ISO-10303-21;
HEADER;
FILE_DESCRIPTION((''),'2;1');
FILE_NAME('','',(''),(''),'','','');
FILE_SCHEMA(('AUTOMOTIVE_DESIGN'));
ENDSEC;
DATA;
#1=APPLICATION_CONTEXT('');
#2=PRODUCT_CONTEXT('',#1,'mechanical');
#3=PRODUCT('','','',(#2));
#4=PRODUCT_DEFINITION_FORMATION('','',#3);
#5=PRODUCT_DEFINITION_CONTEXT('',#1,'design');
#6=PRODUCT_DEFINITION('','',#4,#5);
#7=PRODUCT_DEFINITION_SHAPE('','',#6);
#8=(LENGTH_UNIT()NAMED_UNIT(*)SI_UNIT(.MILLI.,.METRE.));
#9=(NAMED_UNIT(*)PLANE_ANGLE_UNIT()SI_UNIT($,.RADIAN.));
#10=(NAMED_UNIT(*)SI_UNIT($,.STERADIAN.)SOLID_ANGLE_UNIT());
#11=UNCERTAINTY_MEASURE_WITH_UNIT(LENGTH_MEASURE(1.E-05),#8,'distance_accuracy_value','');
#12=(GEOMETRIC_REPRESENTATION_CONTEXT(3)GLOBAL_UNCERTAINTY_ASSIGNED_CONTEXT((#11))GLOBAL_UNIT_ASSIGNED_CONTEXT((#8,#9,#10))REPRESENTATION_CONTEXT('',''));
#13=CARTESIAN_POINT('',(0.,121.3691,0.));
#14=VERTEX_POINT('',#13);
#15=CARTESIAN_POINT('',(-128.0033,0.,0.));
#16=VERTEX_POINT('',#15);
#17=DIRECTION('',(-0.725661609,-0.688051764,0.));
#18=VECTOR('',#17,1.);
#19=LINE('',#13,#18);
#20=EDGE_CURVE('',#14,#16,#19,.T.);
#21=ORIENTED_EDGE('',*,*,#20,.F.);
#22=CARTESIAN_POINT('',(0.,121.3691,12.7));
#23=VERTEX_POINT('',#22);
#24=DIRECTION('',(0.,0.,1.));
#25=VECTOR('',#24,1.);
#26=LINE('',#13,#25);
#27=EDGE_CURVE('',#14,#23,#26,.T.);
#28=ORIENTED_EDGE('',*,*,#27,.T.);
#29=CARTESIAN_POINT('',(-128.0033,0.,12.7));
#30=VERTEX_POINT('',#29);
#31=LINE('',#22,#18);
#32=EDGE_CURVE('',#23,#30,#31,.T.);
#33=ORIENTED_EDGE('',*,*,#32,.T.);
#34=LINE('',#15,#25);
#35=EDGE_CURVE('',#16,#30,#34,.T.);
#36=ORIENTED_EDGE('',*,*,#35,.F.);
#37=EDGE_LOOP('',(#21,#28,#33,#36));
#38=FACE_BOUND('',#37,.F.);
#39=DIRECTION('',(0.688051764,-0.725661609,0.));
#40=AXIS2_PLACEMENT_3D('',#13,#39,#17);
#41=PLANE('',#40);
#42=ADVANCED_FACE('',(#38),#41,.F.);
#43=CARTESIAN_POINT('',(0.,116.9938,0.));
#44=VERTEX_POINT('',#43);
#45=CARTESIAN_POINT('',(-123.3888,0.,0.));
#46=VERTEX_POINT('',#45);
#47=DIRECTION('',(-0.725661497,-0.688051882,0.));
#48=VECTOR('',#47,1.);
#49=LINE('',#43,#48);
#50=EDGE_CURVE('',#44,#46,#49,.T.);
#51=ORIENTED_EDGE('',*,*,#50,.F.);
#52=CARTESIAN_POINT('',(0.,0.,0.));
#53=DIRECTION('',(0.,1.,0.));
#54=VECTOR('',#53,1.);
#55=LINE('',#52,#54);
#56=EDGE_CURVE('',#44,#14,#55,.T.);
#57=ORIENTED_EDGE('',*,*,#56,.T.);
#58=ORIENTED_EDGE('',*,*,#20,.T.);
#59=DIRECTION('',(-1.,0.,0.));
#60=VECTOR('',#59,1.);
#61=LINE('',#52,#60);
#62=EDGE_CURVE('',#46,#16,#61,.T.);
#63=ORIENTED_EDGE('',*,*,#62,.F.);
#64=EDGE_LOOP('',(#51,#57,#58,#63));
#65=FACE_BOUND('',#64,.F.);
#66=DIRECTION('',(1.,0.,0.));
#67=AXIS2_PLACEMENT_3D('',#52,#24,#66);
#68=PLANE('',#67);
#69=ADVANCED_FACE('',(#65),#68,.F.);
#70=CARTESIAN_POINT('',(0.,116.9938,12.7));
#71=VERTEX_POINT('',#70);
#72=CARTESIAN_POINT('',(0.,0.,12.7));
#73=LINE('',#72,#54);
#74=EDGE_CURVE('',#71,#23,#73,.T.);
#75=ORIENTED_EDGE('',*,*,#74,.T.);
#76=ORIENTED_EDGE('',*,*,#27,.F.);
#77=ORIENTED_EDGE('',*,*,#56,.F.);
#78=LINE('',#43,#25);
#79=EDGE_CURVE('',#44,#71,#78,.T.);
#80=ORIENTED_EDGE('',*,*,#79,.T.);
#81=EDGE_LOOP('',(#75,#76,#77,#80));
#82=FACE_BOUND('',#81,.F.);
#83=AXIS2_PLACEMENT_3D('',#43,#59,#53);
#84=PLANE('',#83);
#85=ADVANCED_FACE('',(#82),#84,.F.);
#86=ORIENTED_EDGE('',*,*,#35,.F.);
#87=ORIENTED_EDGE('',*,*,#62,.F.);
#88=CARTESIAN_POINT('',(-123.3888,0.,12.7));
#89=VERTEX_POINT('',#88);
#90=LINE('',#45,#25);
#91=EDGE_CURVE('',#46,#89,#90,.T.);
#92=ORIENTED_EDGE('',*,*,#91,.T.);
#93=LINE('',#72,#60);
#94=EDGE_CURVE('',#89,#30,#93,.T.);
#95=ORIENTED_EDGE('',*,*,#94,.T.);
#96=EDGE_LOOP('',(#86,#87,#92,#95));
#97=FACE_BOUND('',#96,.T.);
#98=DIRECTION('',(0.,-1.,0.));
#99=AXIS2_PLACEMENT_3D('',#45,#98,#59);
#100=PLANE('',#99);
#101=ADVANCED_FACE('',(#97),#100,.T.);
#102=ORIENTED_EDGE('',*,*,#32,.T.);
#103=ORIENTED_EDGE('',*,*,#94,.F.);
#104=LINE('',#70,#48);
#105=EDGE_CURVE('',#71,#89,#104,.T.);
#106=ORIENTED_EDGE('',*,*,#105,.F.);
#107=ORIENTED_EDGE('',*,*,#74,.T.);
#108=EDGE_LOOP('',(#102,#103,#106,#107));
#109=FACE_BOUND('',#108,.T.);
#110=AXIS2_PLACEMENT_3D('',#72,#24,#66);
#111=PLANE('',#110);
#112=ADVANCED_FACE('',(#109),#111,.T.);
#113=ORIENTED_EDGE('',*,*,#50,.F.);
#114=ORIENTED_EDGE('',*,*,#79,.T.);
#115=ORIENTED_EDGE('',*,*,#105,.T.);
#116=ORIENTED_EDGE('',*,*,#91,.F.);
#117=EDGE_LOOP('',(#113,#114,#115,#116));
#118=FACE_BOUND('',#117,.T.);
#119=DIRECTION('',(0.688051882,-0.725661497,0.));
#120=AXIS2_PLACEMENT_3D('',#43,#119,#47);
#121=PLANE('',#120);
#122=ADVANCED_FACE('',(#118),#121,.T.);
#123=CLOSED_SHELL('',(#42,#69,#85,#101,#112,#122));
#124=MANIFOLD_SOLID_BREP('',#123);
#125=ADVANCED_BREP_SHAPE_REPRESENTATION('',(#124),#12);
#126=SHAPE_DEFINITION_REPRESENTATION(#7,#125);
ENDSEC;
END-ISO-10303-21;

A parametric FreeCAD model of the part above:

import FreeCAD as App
import Part
import Sketcher
from FreeCAD import Vector
Q = App.Units.Quantity

doc = App.newDocument("Part")
body = doc.addObject("PartDesign::Body", "Body")

sketch1 = doc.addObject("Sketcher::SketchObject", "Sketch")
body.addObject(sketch1)
sketch1.AttachmentSupport = (doc.XY_Plane, [""])
sketch1.MapMode = "FlatFace"
sketch1.addGeometry([
    Part.LineSegment(Vector(-123.3888, 0, 0), Vector(0, 116.9938, 0)),
    Part.LineSegment(Vector(0, 116.9938, 0), Vector(0, 121.3691, 0)),
    Part.LineSegment(Vector(0, 121.3691, 0), Vector(-128.0033, 0, 0)),
    Part.LineSegment(Vector(-128.0033, 0, 0), Vector(-123.3888, 0, 0)),
], False)
sketch1.addConstraint([
    Sketcher.Constraint("Coincident", 0, 2, 1, 1),
    Sketcher.Constraint("Coincident", 1, 2, 2, 1),
    Sketcher.Constraint("Coincident", 2, 2, 3, 1),
    Sketcher.Constraint("Coincident", 3, 2, 0, 1),
    Sketcher.Constraint("Vertical", 1),
    Sketcher.Constraint("Horizontal", 3),
    Sketcher.Constraint("PointOnObject", 0, 2, -2),
    Sketcher.Constraint("PointOnObject", 2, 2, -1),
    Sketcher.Constraint("Parallel", 0, 2),
    Sketcher.Constraint("DistanceX", 2, 2, -1, 1, Q("5.0395 in")),
    Sketcher.Constraint("Distance", 2, Q("6.9447 in")),
    Sketcher.Constraint("DistanceX", 3, 1, 3, 2, 4.6145),
])
pad1 = doc.addObject("PartDesign::Pad", "Pad")
body.addObject(pad1)
pad1.Profile = sketch1
pad1.Length = Q("0.5 in")

doc.recompute()
